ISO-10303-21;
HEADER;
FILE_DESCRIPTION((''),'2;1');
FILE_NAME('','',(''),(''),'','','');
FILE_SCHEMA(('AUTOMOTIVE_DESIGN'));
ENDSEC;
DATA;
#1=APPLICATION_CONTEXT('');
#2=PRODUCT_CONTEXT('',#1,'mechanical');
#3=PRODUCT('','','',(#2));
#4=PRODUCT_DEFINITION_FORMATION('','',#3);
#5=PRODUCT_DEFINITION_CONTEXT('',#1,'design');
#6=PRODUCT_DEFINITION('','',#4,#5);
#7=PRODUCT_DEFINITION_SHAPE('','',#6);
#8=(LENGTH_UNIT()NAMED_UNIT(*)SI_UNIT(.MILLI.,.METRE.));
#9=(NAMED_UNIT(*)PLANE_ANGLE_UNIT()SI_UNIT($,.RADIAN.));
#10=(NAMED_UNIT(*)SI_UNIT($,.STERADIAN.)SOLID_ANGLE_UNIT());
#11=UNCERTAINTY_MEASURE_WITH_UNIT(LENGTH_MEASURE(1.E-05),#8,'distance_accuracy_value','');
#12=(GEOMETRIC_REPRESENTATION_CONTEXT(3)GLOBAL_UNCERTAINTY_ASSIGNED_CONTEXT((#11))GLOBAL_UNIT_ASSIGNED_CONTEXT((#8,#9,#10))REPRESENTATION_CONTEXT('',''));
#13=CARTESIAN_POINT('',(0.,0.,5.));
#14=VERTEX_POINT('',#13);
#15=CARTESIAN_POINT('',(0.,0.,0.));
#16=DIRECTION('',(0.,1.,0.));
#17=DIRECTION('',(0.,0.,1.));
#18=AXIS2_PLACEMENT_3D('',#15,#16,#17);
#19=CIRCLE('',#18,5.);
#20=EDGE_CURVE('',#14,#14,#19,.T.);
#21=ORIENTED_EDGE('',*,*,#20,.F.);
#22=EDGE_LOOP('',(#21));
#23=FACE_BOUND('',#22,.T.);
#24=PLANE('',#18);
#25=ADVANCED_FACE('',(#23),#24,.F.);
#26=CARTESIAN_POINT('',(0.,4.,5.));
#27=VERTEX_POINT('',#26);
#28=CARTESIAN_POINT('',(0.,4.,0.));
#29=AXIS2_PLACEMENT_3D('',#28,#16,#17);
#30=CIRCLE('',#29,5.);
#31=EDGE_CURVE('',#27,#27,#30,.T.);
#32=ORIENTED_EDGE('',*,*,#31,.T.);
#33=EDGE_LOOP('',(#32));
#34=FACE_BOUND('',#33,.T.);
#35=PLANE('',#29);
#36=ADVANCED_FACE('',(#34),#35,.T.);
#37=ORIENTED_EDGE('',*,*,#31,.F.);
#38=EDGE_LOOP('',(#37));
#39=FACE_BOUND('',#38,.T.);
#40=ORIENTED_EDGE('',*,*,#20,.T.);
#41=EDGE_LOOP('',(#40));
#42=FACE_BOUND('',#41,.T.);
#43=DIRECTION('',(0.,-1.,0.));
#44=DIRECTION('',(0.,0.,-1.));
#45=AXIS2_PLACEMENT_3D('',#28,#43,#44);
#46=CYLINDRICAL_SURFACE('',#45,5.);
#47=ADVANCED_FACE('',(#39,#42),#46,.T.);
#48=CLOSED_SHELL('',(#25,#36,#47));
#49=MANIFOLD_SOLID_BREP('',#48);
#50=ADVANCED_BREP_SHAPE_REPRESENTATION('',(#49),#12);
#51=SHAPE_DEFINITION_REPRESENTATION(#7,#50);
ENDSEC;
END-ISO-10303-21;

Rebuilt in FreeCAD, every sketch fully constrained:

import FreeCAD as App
import Part
import Sketcher

doc = App.newDocument("Part")
params = doc.addObject("Spreadsheet::Sheet", "Params")
for row, (alias, value) in enumerate([
    ("sketch1_diameter", "10 mm"),
    ("pad1_length", "4 mm"),
], start=1):
    params.set(f"A{row}", alias)
    params.set(f"B{row}", "=" + value)
    params.setAlias(f"B{row}", alias)

body = doc.addObject("PartDesign::Body", "Body")

# Sketch on XZ plane
sketch1 = body.newObject("Sketcher::SketchObject", "Sketch")
sketch1.AttachmentSupport = (doc.getObject("XZ_Plane"), [""])
sketch1.MapMode = "FlatFace"
sketch1.addGeometry(Part.Circle(App.Vector(0, 0, 0), App.Vector(0, 0, 1), 5), False)
sketch1.addConstraint([
    Sketcher.Constraint("Coincident", 0, 3, -1, 1),
    Sketcher.Constraint("Diameter", 0, 10.0),
])
sketch1.setExpression("Constraints[1]", "Params.sketch1_diameter")
pad1 = body.newObject("PartDesign::Pad", "Pad")
pad1.Profile = sketch1
pad1.setExpression("Length", "Params.pad1_length")
pad1.Reversed = True

doc.recompute()
